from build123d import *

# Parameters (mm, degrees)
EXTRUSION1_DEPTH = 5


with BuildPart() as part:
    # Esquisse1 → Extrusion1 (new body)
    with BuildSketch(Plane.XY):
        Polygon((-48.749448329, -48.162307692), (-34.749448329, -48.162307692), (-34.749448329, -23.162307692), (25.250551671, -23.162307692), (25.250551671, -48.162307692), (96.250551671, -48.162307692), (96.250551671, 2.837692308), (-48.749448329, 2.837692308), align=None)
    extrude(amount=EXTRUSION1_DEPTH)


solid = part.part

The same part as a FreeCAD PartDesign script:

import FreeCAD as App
import Part
import Sketcher


def add_polygon(sketch, points):
    """Adds a closed chain of lines whose ends are joined by coincident constraints."""
    first, n = sketch.GeometryCount, len(points)
    for a, b in zip(points, points[1:] + points[:1]):
        sketch.addGeometry(Part.LineSegment(App.Vector(*a, 0), App.Vector(*b, 0)), False)
    for i in range(n):
        sketch.addConstraint(Sketcher.Constraint("Coincident", first + i, 2, first + (i + 1) % n, 1))

doc = App.newDocument("Part")
body = doc.addObject("PartDesign::Body", "Body")

# Sketch on XY plane
sketch1 = body.newObject("Sketcher::SketchObject", "Sketch")
sketch1.AttachmentSupport = (doc.getObject("XY_Plane"), [""])
sketch1.MapMode = "FlatFace"
add_polygon(sketch1, [(-49, -48), (-35, -48), (-35, -23), (25, -23), (25, -48), (96, -48), (96, 3), (-49, 3)])  # lines 0-7
sketch1.addConstraint(Sketcher.Constraint("Horizontal", 0))
sketch1.addConstraint(Sketcher.Constraint("Vertical", 1))
sketch1.addConstraint(Sketcher.Constraint("Horizontal", 2))
sketch1.addConstraint(Sketcher.Constraint("Vertical", 3))
sketch1.addConstraint(Sketcher.Constraint("Horizontal", 4))
sketch1.addConstraint(Sketcher.Constraint("Vertical", 5))
sketch1.addConstraint(Sketcher.Constraint("Horizontal", 6))
sketch1.addConstraint(Sketcher.Constraint("Vertical", 7))
sketch1.addConstraint(Sketcher.Constraint("Horizontal", 0, 2, 3, 2))
sketch1.addConstraint(Sketcher.Constraint("DistanceX", 0, 1, 0, 2, 14.0))
sketch1.addConstraint(Sketcher.Constraint("DistanceX", 2, 1, 2, 2, 60.0))
sketch1.addConstraint(Sketcher.Constraint("DistanceX", 4, 1, 4, 2, 71.0))
sketch1.addConstraint(Sketcher.Constraint("DistanceY", 1, 1, 1, 2, 25.0))
sketch1.addConstraint(Sketcher.Constraint("DistanceY", 5, 1, 5, 2, 51.0))
sketch1.addConstraint(Sketcher.Constraint("DistanceX", 0, 2, -1, 1, 34.749448))
sketch1.addConstraint(Sketcher.Constraint("DistanceY", 0, 2, -1, 1, 48.162308))
pad1 = body.newObject("PartDesign::Pad", "Pad")
pad1.Profile = sketch1
pad1.Length = 5

doc.recompute()
